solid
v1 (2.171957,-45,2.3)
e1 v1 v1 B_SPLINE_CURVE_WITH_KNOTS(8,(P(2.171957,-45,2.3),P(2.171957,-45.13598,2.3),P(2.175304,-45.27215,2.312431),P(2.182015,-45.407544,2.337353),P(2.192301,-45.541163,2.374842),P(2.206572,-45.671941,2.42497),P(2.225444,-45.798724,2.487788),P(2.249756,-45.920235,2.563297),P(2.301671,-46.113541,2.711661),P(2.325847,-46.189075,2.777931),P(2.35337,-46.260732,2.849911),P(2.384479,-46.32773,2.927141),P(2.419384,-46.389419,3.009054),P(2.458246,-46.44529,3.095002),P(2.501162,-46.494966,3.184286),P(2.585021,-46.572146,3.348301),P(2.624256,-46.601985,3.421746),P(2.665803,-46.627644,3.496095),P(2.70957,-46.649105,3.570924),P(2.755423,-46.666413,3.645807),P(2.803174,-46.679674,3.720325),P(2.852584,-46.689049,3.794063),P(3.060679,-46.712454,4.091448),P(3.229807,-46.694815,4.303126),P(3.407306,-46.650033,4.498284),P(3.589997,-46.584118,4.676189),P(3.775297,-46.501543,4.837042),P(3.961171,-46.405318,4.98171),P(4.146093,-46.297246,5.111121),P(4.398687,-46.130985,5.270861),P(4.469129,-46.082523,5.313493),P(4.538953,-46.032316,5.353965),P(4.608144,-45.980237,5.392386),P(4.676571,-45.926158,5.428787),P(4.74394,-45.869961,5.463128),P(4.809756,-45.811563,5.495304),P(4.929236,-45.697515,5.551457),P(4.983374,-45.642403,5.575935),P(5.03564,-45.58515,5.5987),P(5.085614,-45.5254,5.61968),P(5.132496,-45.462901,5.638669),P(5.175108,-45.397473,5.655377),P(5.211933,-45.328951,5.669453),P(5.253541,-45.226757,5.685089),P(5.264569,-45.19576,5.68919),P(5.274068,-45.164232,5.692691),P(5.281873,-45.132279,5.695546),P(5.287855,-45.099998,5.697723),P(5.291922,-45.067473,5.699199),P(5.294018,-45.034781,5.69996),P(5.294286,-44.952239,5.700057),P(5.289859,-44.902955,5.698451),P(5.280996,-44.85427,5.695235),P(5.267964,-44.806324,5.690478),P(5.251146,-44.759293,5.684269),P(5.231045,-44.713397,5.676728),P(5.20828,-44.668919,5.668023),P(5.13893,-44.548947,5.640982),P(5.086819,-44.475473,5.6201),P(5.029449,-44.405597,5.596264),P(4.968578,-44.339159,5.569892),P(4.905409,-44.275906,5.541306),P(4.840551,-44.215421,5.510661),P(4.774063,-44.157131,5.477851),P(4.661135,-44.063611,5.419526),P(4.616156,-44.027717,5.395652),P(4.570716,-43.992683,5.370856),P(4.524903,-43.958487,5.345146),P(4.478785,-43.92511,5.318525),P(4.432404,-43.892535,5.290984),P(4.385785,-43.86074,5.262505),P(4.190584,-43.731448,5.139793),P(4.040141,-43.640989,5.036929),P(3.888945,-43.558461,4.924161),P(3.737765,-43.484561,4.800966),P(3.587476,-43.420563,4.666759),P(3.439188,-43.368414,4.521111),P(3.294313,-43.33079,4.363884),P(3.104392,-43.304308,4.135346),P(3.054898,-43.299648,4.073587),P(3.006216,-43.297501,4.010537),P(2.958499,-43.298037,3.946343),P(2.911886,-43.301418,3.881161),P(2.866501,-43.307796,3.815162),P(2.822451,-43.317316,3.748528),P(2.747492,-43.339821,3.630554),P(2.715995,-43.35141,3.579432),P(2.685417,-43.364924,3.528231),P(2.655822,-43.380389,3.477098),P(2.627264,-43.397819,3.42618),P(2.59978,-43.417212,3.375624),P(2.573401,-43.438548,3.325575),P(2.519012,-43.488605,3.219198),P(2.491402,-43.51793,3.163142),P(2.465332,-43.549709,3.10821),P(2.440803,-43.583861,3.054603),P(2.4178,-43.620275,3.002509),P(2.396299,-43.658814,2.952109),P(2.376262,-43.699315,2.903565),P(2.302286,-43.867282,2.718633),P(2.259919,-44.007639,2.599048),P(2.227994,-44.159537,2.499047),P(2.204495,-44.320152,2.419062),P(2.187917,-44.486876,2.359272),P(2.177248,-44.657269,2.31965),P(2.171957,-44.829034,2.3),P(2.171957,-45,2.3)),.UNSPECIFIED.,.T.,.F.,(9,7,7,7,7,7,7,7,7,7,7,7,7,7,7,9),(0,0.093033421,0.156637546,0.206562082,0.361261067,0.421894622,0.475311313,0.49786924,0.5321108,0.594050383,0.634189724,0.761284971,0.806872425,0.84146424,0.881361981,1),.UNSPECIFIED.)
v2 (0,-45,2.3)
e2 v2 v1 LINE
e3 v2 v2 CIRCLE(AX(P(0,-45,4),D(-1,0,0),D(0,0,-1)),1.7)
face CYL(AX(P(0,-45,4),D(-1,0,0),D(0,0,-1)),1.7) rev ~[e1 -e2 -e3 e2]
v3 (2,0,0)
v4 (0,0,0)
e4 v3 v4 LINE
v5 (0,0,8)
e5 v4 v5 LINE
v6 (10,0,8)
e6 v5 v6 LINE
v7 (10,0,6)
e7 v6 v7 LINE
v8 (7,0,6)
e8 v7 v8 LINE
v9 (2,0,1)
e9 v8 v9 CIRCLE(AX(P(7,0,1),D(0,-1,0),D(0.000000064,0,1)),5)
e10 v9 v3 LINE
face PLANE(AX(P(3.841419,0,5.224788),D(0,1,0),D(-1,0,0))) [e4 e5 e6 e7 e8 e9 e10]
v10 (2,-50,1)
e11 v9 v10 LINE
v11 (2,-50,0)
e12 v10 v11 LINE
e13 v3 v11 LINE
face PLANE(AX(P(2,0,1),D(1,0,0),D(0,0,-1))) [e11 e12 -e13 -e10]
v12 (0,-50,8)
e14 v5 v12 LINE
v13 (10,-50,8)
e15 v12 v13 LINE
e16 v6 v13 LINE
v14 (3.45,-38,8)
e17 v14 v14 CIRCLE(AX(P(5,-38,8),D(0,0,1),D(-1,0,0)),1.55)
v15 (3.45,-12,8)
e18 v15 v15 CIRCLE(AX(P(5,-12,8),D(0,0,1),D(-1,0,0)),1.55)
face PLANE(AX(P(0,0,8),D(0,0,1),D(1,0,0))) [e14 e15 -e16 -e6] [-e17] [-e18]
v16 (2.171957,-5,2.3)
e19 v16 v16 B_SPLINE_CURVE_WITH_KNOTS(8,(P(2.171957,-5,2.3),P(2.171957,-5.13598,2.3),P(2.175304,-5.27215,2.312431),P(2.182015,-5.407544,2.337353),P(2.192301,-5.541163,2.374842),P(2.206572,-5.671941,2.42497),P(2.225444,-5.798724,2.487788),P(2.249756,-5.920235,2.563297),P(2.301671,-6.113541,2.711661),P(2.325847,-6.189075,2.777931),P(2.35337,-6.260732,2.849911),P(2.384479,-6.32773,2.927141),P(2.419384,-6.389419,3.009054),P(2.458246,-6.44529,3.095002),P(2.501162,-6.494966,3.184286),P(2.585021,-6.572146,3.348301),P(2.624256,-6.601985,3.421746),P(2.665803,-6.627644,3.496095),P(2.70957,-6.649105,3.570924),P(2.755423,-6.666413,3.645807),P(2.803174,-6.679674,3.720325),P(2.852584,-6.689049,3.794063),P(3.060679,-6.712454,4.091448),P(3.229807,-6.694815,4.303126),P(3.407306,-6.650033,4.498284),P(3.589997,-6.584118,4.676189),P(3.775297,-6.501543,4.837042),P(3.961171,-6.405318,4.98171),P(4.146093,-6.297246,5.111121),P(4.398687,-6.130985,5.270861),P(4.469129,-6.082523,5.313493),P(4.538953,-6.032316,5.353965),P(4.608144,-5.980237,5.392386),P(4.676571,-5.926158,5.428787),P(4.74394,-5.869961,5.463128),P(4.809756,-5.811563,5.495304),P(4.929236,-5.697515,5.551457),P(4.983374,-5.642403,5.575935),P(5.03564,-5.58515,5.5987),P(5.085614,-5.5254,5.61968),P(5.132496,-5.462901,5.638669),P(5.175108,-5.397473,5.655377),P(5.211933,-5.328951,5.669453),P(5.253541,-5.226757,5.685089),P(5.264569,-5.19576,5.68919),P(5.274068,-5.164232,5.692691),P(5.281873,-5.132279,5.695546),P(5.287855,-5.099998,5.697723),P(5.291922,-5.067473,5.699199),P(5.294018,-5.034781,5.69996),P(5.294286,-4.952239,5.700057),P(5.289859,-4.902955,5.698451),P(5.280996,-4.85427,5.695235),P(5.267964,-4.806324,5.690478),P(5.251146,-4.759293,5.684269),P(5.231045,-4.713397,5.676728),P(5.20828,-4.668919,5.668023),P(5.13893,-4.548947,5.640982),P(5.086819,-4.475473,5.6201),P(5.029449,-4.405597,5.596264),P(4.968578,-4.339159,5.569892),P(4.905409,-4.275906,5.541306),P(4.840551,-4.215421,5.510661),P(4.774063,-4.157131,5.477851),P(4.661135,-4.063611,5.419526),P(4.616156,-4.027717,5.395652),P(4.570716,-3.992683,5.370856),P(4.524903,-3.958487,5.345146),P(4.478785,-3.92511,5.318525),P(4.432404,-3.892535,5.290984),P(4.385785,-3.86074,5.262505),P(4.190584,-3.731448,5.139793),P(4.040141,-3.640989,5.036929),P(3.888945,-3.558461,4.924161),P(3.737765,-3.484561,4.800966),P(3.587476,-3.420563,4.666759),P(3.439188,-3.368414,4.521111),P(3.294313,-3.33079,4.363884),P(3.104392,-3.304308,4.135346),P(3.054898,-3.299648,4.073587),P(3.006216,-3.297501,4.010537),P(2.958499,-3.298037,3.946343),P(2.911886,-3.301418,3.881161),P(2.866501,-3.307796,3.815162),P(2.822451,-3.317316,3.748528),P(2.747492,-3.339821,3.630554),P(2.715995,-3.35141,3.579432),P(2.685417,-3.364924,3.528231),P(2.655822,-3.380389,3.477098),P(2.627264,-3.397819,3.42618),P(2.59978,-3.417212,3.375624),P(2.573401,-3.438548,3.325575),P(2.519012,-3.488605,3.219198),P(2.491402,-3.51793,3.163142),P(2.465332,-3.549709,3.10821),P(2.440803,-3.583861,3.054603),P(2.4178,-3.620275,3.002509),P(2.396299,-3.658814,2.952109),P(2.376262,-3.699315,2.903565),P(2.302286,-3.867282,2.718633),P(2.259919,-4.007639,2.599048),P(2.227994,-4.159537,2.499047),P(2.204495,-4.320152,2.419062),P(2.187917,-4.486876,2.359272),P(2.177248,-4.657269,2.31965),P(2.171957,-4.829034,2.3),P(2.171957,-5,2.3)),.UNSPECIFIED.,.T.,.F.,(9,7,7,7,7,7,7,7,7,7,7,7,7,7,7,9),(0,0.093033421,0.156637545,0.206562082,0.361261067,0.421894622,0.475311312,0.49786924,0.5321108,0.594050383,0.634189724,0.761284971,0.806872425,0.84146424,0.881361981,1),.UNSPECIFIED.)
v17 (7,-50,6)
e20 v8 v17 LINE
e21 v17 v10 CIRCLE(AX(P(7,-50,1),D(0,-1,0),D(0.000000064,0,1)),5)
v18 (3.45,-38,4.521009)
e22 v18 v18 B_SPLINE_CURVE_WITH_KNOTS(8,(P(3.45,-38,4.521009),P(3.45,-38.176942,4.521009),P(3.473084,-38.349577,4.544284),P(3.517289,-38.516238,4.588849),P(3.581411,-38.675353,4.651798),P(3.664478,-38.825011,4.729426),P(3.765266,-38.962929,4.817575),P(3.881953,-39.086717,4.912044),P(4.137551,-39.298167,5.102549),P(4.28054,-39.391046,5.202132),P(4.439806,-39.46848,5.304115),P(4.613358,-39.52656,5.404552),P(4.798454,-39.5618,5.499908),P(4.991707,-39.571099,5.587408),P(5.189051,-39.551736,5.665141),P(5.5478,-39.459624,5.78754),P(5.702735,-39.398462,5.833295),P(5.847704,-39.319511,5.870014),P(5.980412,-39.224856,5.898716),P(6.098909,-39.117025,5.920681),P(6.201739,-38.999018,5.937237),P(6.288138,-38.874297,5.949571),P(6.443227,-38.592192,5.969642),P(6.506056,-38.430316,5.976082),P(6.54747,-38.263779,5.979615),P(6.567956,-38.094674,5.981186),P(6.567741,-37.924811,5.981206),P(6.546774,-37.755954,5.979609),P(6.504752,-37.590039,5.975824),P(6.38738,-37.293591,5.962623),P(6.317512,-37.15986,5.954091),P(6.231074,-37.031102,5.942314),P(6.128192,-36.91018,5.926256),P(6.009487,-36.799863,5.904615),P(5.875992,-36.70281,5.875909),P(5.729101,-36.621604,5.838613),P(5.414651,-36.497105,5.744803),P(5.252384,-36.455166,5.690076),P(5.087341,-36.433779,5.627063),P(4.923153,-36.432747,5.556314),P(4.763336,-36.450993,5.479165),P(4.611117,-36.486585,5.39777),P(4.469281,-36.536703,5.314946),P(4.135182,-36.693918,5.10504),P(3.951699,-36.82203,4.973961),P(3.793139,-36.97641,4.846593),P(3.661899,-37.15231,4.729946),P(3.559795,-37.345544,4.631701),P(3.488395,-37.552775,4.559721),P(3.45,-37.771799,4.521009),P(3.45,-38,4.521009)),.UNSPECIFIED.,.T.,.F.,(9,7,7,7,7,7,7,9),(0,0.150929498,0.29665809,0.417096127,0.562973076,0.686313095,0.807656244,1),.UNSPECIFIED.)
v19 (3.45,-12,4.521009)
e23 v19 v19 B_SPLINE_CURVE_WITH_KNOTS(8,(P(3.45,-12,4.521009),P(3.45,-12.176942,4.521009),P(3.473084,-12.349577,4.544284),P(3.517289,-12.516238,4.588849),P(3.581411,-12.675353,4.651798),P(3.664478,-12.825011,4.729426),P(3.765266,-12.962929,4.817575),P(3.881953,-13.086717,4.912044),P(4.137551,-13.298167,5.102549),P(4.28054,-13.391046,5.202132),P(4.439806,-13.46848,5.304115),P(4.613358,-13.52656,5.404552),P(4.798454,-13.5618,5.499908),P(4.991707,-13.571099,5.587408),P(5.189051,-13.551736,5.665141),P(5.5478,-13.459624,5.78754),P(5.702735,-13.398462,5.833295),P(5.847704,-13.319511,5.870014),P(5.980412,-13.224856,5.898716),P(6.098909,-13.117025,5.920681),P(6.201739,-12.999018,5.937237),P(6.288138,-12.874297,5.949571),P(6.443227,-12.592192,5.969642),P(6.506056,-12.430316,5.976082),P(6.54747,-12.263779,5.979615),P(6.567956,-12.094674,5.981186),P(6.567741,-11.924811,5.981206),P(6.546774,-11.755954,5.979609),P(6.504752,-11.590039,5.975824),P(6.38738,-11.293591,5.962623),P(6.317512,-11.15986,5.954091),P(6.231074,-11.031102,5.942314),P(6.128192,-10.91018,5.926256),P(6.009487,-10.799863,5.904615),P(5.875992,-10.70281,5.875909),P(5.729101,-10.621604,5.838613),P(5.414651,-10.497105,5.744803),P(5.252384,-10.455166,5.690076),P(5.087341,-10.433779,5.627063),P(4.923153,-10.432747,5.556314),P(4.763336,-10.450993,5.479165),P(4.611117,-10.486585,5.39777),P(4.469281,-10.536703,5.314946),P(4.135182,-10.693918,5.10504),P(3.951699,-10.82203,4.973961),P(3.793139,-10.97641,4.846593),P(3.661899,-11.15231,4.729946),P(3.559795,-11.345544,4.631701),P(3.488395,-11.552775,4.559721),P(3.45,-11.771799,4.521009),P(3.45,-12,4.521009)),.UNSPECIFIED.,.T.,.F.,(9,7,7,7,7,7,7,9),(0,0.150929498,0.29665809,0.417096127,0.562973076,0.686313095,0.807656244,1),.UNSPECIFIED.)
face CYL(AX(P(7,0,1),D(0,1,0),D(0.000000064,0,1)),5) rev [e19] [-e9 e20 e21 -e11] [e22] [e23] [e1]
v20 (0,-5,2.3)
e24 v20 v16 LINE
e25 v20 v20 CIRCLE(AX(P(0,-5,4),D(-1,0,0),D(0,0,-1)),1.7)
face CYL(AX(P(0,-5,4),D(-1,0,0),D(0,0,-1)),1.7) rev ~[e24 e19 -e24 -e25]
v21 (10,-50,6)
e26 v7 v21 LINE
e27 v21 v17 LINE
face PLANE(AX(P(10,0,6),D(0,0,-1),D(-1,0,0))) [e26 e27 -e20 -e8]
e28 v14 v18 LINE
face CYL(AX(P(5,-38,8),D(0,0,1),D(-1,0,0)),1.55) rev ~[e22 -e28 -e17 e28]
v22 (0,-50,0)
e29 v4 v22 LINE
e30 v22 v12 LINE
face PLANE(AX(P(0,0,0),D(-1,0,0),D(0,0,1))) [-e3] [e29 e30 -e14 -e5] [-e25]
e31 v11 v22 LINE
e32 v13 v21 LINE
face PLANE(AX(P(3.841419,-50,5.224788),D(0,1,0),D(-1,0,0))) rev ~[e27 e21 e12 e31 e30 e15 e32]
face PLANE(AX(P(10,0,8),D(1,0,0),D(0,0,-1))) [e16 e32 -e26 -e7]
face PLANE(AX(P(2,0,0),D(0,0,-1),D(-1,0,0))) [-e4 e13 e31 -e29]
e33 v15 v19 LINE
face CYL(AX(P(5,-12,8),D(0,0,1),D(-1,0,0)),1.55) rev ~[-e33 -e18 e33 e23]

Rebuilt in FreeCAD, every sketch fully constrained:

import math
import FreeCAD as App
import Part
import Sketcher
Q = App.Units.Quantity

doc = App.newDocument("Part")
params = doc.addObject("Spreadsheet::Sheet", "Params")
for row, (alias, value) in enumerate([
    ("sketch1_radius", "5 mm"),
    ("sketch1_width", "2 mm"),
    ("sketch1_width2", "3 mm"),
    ("sketch1_height", "8 mm"),
    ("pad1_length", "50 mm"),
    ("sketch2_diameter", "3.4 mm"),
    ("sketch3_diameter", "3.1 mm"),
], start=1):
    params.set(f"A{row}", alias)
    params.set(f"B{row}", "=" + value)
    params.setAlias(f"B{row}", alias)

body = doc.addObject("PartDesign::Body", "Body")

sketch1 = body.newObject("Sketcher::SketchObject", "Sketch")
sketch1.AttachmentSupport = (doc.getObject("XZ_Plane"), [""])
sketch1.MapMode = "FlatFace"
sketch1.addGeometry(Part.LineSegment(App.Vector(0, 8, 0), App.Vector(0, 0, 0)), False)
sketch1.addGeometry(Part.LineSegment(App.Vector(0, 0, 0), App.Vector(2, 0, 0)), False)
sketch1.addGeometry(Part.LineSegment(App.Vector(2, 0, 0), App.Vector(2, 1, 0)), False)
sketch1.addGeometry(Part.ArcOfCircle(Part.Circle(App.Vector(7, 1, 0), App.Vector(0, 0, 1), 5), math.radians(89.999996), math.radians(180.000004)), False)
sketch1.addGeometry(Part.LineSegment(App.Vector(7, 6, 0), App.Vector(10, 6, 0)), False)
sketch1.addGeometry(Part.LineSegment(App.Vector(10, 6, 0), App.Vector(10, 8, 0)), False)
sketch1.addGeometry(Part.LineSegment(App.Vector(10, 8, 0), App.Vector(0, 8, 0)), False)
sketch1.addConstraint(Sketcher.Constraint("Coincident", 0, 2, 1, 1))
sketch1.addConstraint(Sketcher.Constraint("Coincident", 1, 2, 2, 1))
sketch1.addConstraint(Sketcher.Constraint("Tangent", 2, 2, 3, 2))
sketch1.addConstraint(Sketcher.Constraint("Tangent", 3, 1, 4, 1))
sketch1.addConstraint(Sketcher.Constraint("Coincident", 4, 2, 5, 1))
sketch1.addConstraint(Sketcher.Constraint("Coincident", 5, 2, 6, 1))
sketch1.addConstraint(Sketcher.Constraint("Coincident", 6, 2, 0, 1))
sketch1.addConstraint(Sketcher.Constraint("Vertical", 0))
sketch1.addConstraint(Sketcher.Constraint("Horizontal", 1))
sketch1.addConstraint(Sketcher.Constraint("Vertical", 2))
sketch1.addConstraint(Sketcher.Constraint("Horizontal", 4))
sketch1.addConstraint(Sketcher.Constraint("Vertical", 5))
sketch1.addConstraint(Sketcher.Constraint("Horizontal", 6))
sketch1.addConstraint(Sketcher.Constraint("Coincident", 0, 2, -1, 1))
sketch1.addConstraint(Sketcher.Constraint("Equal", 1, 5))
sketch1.addConstraint(Sketcher.Constraint("Radius", 3, Q("5 mm")))
sketch1.addConstraint(Sketcher.Constraint("DistanceX", 1, 1, 1, 2, Q("2 mm")))
sketch1.addConstraint(Sketcher.Constraint("DistanceX", 4, 1, 4, 2, Q("3 mm")))
sketch1.addConstraint(Sketcher.Constraint("DistanceY", 0, 2, 0, 1, Q("8 mm")))
sketch1.setExpression("Constraints[15]", "Params.sketch1_radius")
sketch1.setExpression("Constraints[16]", "Params.sketch1_width")
sketch1.setExpression("Constraints[17]", "Params.sketch1_width2")
sketch1.setExpression("Constraints[18]", "Params.sketch1_height")
pad1 = body.newObject("PartDesign::Pad", "Pad")
pad1.Profile = sketch1
pad1.setExpression("Length", "Params.pad1_length")

sketch2 = body.newObject("Sketcher::SketchObject", "Sketch001")
sketch2.AttachmentSupport = (doc.getObject("YZ_Plane"), [""])
sketch2.MapMode = "FlatFace"
sketch2.addGeometry(Part.Circle(App.Vector(-5, 4, 0), App.Vector(0, 0, 1), 1.7), False)
sketch2.addGeometry(Part.Circle(App.Vector(-45, 4, 0), App.Vector(0, 0, 1), 1.7), False)
sketch2.addConstraint(Sketcher.Constraint("Equal", 0, 1))
sketch2.addConstraint(Sketcher.Constraint("Horizontal", 0, 3, 1, 3))
sketch2.addConstraint(Sketcher.Constraint("Diameter", 0, Q("3.4 mm")))
sketch2.addConstraint(Sketcher.Constraint("DistanceX", 0, 3, -1, 1, Q("5 mm")))
sketch2.addConstraint(Sketcher.Constraint("DistanceY", -1, 1, 0, 3, Q("4 mm")))
sketch2.addConstraint(Sketcher.Constraint("DistanceX", 1, 3, -1, 1, Q("45 mm")))
sketch2.setExpression("Constraints[2]", "Params.sketch2_diameter")
pocket1 = body.newObject("PartDesign::Pocket", "Pocket")
pocket1.Profile = sketch2
pocket1.Type = "ThroughAll"
pocket1.Reversed = True

sketch3 = body.newObject("Sketcher::SketchObject", "Sketch002")
sketch3.AttachmentSupport = (doc.getObject("XY_Plane"), [""])
sketch3.MapMode = "FlatFace"
sketch3.AttachmentOffset = App.Placement(App.Vector(0, 0, 8), App.Rotation())
sketch3.addGeometry(Part.Circle(App.Vector(5, -38, 0), App.Vector(0, 0, 1), 1.55), False)
sketch3.addGeometry(Part.Circle(App.Vector(5, -12, 0), App.Vector(0, 0, 1), 1.55), False)
sketch3.addConstraint(Sketcher.Constraint("Equal", 0, 1))
sketch3.addConstraint(Sketcher.Constraint("Vertical", 0, 3, 1, 3))
sketch3.addConstraint(Sketcher.Constraint("Diameter", 0, Q("3.1 mm")))
sketch3.addConstraint(Sketcher.Constraint("DistanceX", -1, 1, 0, 3, Q("5 mm")))
sketch3.addConstraint(Sketcher.Constraint("DistanceY", 0, 3, -1, 1, Q("38 mm")))
sketch3.addConstraint(Sketcher.Constraint("DistanceY", 1, 3, -1, 1, Q("12 mm")))
sketch3.setExpression("Constraints[2]", "Params.sketch3_diameter")
pocket2 = body.newObject("PartDesign::Pocket", "Pocket001")
pocket2.Profile = sketch3
pocket2.Type = "ThroughAll"

doc.recompute()
